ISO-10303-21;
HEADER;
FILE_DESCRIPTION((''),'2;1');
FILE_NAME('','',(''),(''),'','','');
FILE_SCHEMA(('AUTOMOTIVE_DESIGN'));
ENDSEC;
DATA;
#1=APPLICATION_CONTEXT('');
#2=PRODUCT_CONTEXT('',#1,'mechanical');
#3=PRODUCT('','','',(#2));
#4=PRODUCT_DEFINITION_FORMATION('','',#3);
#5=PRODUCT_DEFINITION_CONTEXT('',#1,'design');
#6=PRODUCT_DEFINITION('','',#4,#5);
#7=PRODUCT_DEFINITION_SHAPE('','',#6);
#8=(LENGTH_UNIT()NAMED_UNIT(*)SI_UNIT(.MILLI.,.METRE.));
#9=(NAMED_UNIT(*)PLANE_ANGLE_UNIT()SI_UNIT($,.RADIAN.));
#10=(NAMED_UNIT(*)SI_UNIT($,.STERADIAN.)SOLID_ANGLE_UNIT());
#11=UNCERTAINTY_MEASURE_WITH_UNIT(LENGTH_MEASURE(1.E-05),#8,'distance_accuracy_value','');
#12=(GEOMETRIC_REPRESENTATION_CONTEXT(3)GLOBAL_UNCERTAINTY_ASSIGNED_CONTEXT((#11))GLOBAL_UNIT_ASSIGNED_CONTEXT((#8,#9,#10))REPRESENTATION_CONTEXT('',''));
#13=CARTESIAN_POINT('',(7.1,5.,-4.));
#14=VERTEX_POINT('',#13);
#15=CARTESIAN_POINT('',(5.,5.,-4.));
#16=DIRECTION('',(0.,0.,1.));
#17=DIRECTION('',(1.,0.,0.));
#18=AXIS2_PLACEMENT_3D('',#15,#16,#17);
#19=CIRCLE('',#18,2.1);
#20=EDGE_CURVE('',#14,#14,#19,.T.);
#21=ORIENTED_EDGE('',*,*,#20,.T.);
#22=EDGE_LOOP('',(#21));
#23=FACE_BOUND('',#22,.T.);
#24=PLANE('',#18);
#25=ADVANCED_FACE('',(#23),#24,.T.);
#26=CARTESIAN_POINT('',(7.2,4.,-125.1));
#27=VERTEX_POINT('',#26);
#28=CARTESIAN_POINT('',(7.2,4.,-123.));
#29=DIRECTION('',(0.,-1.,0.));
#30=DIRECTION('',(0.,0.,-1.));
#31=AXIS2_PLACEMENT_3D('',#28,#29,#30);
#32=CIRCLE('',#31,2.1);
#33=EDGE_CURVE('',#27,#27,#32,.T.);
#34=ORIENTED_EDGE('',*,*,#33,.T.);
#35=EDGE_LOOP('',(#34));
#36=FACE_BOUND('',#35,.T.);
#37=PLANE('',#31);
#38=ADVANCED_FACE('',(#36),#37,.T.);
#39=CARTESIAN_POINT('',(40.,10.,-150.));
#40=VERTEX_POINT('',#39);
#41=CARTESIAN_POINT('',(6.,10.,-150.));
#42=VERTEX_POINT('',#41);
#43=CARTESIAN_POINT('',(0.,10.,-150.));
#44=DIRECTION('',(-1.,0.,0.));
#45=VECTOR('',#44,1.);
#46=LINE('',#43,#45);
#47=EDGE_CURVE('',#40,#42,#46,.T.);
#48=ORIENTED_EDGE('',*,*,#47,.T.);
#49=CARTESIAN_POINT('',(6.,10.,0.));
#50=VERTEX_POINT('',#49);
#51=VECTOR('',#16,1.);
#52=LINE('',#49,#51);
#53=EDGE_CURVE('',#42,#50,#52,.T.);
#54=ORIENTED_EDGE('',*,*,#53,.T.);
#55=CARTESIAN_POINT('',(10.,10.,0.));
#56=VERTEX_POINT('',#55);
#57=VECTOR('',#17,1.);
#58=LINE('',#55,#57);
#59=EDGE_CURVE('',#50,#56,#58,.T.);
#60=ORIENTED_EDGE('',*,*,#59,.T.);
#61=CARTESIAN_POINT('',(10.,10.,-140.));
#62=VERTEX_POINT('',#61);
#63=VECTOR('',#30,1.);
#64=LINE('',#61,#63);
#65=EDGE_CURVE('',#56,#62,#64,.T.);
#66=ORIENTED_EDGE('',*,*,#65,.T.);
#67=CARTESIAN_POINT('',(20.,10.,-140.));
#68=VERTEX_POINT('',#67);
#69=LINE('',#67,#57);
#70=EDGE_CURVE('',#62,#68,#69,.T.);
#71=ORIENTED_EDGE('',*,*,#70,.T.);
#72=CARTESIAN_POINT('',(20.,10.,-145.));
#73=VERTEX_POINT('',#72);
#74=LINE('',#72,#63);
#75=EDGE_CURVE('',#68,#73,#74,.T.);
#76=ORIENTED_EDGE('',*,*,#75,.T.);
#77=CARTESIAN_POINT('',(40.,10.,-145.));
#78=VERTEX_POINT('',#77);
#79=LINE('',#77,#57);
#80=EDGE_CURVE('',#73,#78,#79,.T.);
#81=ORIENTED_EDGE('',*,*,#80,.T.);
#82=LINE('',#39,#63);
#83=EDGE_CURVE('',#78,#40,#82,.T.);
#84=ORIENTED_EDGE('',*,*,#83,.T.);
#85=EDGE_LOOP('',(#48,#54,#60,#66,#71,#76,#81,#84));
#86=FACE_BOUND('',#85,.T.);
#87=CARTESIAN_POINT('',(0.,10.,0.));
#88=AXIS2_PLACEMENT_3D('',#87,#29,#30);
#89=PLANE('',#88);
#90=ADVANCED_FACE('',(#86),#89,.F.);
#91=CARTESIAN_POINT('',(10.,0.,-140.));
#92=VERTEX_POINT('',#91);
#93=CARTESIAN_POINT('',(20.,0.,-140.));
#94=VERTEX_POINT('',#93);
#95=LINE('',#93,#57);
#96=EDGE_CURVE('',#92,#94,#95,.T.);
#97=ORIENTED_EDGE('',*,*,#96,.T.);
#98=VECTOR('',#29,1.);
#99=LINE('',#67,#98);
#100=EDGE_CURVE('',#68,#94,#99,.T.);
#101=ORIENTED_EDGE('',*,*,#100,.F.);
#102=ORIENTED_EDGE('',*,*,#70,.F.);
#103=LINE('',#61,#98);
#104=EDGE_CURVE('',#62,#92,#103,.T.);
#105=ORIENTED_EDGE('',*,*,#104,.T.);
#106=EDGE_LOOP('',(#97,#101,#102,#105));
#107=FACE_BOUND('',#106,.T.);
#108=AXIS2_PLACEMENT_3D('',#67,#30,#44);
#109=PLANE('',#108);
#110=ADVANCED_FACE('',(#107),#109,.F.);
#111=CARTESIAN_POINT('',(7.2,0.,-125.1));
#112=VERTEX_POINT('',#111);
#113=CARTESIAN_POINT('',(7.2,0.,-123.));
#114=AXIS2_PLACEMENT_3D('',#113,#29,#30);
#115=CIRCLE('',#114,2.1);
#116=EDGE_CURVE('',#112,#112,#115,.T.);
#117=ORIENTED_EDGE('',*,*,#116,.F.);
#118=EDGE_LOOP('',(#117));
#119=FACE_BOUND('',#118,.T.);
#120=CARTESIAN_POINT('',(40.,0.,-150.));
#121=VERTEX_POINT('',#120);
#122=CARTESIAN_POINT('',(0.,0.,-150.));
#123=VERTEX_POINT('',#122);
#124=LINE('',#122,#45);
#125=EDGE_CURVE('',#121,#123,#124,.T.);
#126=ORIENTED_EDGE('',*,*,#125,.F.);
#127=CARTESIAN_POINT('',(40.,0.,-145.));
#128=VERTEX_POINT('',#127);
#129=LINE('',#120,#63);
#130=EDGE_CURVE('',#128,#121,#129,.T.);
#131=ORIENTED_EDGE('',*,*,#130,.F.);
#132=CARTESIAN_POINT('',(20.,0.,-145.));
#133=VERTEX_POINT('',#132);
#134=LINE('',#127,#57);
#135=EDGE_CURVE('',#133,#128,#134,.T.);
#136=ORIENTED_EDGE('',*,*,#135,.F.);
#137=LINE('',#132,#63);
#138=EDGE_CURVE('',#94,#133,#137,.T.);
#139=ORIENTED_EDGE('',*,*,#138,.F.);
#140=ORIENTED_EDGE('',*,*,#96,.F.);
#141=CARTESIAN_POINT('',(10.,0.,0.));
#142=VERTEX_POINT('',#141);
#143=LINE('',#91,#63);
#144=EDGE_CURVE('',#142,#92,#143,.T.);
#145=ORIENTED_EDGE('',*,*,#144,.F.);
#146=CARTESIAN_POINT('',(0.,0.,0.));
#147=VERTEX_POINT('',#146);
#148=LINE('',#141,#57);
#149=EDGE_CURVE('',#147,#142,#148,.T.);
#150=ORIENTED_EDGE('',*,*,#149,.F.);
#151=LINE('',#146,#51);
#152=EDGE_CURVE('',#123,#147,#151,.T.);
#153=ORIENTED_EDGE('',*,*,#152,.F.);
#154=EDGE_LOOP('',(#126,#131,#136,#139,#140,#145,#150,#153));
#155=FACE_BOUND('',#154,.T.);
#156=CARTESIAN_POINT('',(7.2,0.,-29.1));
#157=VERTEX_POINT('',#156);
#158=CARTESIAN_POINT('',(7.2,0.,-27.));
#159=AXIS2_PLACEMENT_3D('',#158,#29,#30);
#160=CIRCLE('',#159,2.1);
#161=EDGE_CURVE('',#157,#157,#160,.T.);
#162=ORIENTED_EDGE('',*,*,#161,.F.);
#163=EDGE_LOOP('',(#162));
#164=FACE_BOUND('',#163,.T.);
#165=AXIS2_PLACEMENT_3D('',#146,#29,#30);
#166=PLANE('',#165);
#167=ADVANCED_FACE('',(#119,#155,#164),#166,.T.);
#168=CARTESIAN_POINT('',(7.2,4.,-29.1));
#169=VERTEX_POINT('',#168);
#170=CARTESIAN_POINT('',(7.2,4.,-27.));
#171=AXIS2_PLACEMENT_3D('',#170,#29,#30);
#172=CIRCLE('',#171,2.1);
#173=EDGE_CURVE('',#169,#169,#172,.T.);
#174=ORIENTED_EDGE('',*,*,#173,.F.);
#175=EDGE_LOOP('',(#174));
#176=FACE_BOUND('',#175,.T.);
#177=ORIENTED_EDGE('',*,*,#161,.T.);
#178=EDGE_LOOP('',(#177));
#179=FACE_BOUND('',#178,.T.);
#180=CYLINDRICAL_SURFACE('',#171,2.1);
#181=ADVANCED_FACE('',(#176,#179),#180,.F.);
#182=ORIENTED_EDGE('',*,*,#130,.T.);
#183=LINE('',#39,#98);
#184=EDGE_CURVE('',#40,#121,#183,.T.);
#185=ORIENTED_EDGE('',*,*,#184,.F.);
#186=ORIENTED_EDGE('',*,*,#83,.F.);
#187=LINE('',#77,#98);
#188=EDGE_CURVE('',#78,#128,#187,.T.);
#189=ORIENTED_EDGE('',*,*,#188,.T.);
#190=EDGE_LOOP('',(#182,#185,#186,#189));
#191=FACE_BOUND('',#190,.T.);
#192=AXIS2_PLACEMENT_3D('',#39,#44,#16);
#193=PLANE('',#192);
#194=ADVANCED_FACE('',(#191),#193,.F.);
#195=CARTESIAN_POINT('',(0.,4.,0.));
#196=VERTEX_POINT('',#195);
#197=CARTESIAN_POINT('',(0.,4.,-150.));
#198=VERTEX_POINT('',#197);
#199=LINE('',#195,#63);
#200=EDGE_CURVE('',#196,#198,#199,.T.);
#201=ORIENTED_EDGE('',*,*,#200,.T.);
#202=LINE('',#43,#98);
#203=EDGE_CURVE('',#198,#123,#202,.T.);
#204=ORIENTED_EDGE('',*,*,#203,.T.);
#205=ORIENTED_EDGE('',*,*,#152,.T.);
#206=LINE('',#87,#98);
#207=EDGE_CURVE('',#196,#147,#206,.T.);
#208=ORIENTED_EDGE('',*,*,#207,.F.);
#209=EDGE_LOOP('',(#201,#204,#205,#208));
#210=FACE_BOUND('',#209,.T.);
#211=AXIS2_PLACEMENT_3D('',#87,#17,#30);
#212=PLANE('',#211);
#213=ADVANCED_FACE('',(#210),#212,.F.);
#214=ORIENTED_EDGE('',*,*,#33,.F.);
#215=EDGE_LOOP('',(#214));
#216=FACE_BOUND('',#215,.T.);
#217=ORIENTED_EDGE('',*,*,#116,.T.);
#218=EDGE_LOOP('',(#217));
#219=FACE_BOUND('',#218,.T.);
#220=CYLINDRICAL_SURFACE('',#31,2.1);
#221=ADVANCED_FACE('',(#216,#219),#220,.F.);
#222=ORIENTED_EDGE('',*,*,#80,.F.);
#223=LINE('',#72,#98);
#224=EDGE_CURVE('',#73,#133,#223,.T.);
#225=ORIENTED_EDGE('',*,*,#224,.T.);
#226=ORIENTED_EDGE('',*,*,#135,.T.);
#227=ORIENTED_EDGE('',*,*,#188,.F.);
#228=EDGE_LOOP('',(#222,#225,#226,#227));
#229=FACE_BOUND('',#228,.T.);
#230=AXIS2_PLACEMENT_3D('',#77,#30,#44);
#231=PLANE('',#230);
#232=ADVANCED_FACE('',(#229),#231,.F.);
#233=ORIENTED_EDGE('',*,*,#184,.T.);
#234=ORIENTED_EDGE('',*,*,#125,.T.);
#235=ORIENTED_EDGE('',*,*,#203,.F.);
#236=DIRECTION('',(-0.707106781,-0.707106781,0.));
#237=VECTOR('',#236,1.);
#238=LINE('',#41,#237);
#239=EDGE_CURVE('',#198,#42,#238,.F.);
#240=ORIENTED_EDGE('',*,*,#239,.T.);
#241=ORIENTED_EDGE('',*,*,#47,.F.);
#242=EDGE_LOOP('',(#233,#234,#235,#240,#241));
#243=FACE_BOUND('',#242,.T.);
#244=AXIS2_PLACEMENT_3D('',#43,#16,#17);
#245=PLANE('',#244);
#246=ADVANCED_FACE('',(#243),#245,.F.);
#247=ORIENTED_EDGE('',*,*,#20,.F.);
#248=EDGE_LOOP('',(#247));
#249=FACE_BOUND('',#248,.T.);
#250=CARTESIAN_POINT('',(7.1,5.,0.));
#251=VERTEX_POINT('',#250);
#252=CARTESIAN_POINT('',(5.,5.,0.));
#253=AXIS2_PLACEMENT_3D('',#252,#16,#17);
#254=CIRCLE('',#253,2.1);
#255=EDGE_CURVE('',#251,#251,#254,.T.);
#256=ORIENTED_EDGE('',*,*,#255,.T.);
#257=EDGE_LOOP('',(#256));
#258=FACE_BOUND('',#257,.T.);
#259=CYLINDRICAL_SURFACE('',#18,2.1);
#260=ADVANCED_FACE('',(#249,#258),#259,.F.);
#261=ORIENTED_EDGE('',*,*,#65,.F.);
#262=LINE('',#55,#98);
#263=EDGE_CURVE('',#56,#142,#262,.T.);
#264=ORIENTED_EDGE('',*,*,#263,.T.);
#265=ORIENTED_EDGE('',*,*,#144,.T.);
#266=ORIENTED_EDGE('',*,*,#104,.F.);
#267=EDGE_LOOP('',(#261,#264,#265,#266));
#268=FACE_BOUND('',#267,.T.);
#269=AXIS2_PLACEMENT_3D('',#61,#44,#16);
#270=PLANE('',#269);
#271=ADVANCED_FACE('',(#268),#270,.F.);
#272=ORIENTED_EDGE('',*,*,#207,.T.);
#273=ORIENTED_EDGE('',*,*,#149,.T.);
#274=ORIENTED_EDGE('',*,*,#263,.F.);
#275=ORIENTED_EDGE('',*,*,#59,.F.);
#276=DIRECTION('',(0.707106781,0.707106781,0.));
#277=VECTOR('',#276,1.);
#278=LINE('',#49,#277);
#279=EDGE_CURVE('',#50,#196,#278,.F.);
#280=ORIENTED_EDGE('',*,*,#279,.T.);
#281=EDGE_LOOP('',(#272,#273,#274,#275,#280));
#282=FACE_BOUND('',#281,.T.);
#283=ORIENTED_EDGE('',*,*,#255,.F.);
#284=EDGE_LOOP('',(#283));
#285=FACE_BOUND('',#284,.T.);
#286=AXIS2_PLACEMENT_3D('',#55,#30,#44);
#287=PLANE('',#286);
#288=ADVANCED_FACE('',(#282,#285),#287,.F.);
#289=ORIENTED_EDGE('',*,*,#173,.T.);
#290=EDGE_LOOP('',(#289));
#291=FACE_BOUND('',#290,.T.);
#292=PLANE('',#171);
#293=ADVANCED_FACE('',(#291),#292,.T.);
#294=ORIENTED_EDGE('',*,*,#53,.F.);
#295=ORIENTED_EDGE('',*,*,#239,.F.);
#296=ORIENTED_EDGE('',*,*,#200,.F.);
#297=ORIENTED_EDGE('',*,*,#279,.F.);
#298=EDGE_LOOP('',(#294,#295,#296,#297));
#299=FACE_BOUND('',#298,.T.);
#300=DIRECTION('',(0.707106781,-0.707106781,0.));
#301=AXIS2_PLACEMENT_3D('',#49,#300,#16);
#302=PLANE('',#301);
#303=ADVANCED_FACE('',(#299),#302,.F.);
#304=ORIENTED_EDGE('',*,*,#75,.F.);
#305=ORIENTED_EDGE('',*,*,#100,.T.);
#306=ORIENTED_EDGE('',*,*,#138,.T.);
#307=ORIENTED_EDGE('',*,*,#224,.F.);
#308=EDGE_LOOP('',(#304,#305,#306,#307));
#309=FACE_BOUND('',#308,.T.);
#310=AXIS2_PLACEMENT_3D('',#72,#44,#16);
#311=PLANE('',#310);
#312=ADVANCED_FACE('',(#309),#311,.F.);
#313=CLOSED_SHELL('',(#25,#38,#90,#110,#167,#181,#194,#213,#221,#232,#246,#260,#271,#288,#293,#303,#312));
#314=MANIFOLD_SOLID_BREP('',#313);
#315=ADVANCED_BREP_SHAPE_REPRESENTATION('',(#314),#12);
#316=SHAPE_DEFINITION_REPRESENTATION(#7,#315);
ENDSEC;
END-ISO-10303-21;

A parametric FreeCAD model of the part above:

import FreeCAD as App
import Part
import Sketcher

V = App.Vector
Q = App.Units.Quantity


def edges_at(feature, points):
    """Names of the edges that pass closest to the given points."""
    edges = feature.Shape.Edges
    near = lambda p: min(range(len(edges)), key=lambda i: edges[i].distToShape(Part.Vertex(*p))[0])
    return sorted({f"Edge{near(p) + 1}" for p in points})


def add_polygon(sketch, points):
    """Adds a closed chain of lines whose ends are joined by coincident constraints."""
    first, n = sketch.GeometryCount, len(points)
    for a, b in zip(points, points[1:] + points[:1]):
        sketch.addGeometry(Part.LineSegment(App.Vector(*a, 0), App.Vector(*b, 0)), False)
    for i in range(n):
        sketch.addConstraint(Sketcher.Constraint("Coincident", first + i, 2, first + (i + 1) % n, 1))

doc = App.newDocument("Part")
body = doc.addObject("PartDesign::Body", "Body")

sketch1 = body.newObject("Sketcher::SketchObject", "Sketch")
sketch1.AttachmentSupport = (doc.getObject("XZ_Plane"), [""])
sketch1.MapMode = "FlatFace"
add_polygon(sketch1, [(0, -150), (0, 0), (10, 0), (10, -140), (20, -140), (20, -145), (40, -145), (40, -150)])
sketch1.addConstraint([
    Sketcher.Constraint("Vertical", 0),
    Sketcher.Constraint("Horizontal", 1),
    Sketcher.Constraint("Vertical", 2),
    Sketcher.Constraint("Horizontal", 3),
    Sketcher.Constraint("Vertical", 4),
    Sketcher.Constraint("Horizontal", 5),
    Sketcher.Constraint("Vertical", 6),
    Sketcher.Constraint("Horizontal", 7),
    Sketcher.Constraint("Coincident", 0, 2, -1, 1),
    Sketcher.Constraint("Equal", 1, 3),
    Sketcher.Constraint("Equal", 4, 6),
    Sketcher.Constraint("DistanceX", 1, 1, 1, 2, Q("10 mm")),
    Sketcher.Constraint("DistanceX", 5, 1, 5, 2, Q("20 mm")),
    Sketcher.Constraint("DistanceY", 0, 1, 0, 2, Q("150 mm")),
    Sketcher.Constraint("DistanceY", 2, 2, 2, 1, Q("140 mm")),
])
pad1 = body.newObject("PartDesign::Pad", "Pad")
pad1.Profile = sketch1
pad1.Length = 10
pad1.Reversed = True

sketch2 = body.newObject("Sketcher::SketchObject", "Sketch001")
sketch2.AttachmentSupport = (doc.getObject("XZ_Plane"), [""])
sketch2.MapMode = "FlatFace"
sketch2.addGeometry([
    Part.Circle(V(7.2, -27, 0), V(0, 0, 1), 2.1),
    Part.Circle(V(7.2, -123, 0), V(0, 0, 1), 2.1),
], False)
sketch2.addConstraint([
    Sketcher.Constraint("Equal", 0, 1),
    Sketcher.Constraint("Vertical", 0, 3, 1, 3),
    Sketcher.Constraint("Diameter", 0, Q("4.2 mm")),
    Sketcher.Constraint("DistanceY", 0, 3, -1, 1, Q("27 mm")),
    Sketcher.Constraint("DistanceY", 1, 3, -1, 1, Q("123 mm")),
    Sketcher.Constraint("DistanceX", -1, 1, 0, 3, Q("7.2 mm")),
])
pocket1 = body.newObject("PartDesign::Pocket", "Pocket")
pocket1.Profile = sketch2
pocket1.Length = 4

sketch3 = body.newObject("Sketcher::SketchObject", "Sketch002")
sketch3.AttachmentSupport = (doc.getObject("XY_Plane"), [""])
sketch3.MapMode = "FlatFace"
sketch3.addGeometry(Part.Circle(V(5, 5, 0), V(0, 0, 1), 2.1), False)
sketch3.addConstraint([
    Sketcher.Constraint("Diameter", 0, Q("4.2 mm")),
    Sketcher.Constraint("DistanceX", -1, 1, 0, 3, Q("5 mm")),
    Sketcher.Constraint("DistanceY", -1, 1, 0, 3, Q("5 mm")),
])
pocket2 = body.newObject("PartDesign::Pocket", "Pocket001")
pocket2.Profile = sketch3
pocket2.Length = 4
doc.recompute()

chamfer = body.newObject("PartDesign::Chamfer", "Chamfer")
chamfer.Base = (pocket2, edges_at(pocket2, [(0, 10, -75)]))
chamfer.Size = 6

doc.recompute()
